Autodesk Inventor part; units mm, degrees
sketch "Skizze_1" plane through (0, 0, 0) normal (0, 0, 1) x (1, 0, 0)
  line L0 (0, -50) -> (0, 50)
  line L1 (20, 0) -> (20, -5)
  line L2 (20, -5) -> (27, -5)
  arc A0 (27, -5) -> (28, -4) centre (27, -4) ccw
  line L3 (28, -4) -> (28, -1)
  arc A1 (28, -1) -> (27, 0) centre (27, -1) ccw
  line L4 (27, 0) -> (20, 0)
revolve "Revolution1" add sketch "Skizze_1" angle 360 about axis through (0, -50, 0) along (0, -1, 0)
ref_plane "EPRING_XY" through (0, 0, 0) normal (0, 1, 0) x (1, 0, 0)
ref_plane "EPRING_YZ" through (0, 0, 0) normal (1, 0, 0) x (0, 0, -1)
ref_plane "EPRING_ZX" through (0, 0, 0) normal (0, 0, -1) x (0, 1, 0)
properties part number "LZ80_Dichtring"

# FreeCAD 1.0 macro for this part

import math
import FreeCAD as App
import Part
import Sketcher

V = App.Vector

doc = App.newDocument("Part")
params = doc.addObject("Spreadsheet::Sheet", "Params")
for row, (alias, value) in enumerate([
    ("sketch1_radius", "1 mm"),
    ("sketch1_width", "7 mm"),
    ("sketch1_height", "5 mm"),
    ("revolution_angle", "360 deg"),
], start=1):
    params.set(f"A{row}", alias)
    params.set(f"B{row}", "=" + value)
    params.setAlias(f"B{row}", alias)

body = doc.addObject("PartDesign::Body", "Body")

sketch1 = body.newObject("Sketcher::SketchObject", "Sketch")
sketch1.AttachmentSupport = (doc.getObject("XY_Plane"), [""])
sketch1.MapMode = "FlatFace"
sketch1.addGeometry([
    Part.LineSegment(V(27, 0, 0), V(20, 0, 0)),
    Part.LineSegment(V(20, 0, 0), V(20, -5, 0)),
    Part.LineSegment(V(20, -5, 0), V(27, -5, 0)),
    Part.ArcOfCircle(Part.Circle(V(27, -4, 0), V(0, 0, 1), 1), math.radians(-90), math.radians(0)),
    Part.LineSegment(V(28, -4, 0), V(28, -1, 0)),
    Part.ArcOfCircle(Part.Circle(V(27, -1, 0), V(0, 0, 1), 1), math.radians(0), math.radians(90)),
], False)
sketch1.addConstraint([
    Sketcher.Constraint("Coincident", 0, 2, 1, 1),
    Sketcher.Constraint("Coincident", 1, 2, 2, 1),
    Sketcher.Constraint("Tangent", 2, 2, 3, 1),
    Sketcher.Constraint("Tangent", 3, 2, 4, 1),
    Sketcher.Constraint("Tangent", 4, 2, 5, 1),
    Sketcher.Constraint("Tangent", 5, 2, 0, 1),
    Sketcher.Constraint("Horizontal", 0),
    Sketcher.Constraint("Vertical", 1),
    Sketcher.Constraint("Horizontal", 2),
    Sketcher.Constraint("Vertical", 4),
    Sketcher.Constraint("Equal", 3, 5),
    Sketcher.Constraint("PointOnObject", 0, 2, -1),
    Sketcher.Constraint("Radius", 3, 1.0),
    Sketcher.Constraint("DistanceX", 0, 2, 0, 1, 7.0),
    Sketcher.Constraint("DistanceY", 1, 2, 1, 1, 5.0),
    Sketcher.Constraint("DistanceX", -1, 1, 3, 3, 27.0),
])
sketch1.setExpression("Constraints[12]", "Params.sketch1_radius")
sketch1.setExpression("Constraints[13]", "Params.sketch1_width")
sketch1.setExpression("Constraints[14]", "Params.sketch1_height")
revolution = body.newObject("PartDesign::Revolution", "Revolution")
revolution.Profile = sketch1
revolution.ReferenceAxis = (sketch1, ["V_Axis"])
revolution.setExpression("Angle", "Params.revolution_angle")

doc.recompute()
